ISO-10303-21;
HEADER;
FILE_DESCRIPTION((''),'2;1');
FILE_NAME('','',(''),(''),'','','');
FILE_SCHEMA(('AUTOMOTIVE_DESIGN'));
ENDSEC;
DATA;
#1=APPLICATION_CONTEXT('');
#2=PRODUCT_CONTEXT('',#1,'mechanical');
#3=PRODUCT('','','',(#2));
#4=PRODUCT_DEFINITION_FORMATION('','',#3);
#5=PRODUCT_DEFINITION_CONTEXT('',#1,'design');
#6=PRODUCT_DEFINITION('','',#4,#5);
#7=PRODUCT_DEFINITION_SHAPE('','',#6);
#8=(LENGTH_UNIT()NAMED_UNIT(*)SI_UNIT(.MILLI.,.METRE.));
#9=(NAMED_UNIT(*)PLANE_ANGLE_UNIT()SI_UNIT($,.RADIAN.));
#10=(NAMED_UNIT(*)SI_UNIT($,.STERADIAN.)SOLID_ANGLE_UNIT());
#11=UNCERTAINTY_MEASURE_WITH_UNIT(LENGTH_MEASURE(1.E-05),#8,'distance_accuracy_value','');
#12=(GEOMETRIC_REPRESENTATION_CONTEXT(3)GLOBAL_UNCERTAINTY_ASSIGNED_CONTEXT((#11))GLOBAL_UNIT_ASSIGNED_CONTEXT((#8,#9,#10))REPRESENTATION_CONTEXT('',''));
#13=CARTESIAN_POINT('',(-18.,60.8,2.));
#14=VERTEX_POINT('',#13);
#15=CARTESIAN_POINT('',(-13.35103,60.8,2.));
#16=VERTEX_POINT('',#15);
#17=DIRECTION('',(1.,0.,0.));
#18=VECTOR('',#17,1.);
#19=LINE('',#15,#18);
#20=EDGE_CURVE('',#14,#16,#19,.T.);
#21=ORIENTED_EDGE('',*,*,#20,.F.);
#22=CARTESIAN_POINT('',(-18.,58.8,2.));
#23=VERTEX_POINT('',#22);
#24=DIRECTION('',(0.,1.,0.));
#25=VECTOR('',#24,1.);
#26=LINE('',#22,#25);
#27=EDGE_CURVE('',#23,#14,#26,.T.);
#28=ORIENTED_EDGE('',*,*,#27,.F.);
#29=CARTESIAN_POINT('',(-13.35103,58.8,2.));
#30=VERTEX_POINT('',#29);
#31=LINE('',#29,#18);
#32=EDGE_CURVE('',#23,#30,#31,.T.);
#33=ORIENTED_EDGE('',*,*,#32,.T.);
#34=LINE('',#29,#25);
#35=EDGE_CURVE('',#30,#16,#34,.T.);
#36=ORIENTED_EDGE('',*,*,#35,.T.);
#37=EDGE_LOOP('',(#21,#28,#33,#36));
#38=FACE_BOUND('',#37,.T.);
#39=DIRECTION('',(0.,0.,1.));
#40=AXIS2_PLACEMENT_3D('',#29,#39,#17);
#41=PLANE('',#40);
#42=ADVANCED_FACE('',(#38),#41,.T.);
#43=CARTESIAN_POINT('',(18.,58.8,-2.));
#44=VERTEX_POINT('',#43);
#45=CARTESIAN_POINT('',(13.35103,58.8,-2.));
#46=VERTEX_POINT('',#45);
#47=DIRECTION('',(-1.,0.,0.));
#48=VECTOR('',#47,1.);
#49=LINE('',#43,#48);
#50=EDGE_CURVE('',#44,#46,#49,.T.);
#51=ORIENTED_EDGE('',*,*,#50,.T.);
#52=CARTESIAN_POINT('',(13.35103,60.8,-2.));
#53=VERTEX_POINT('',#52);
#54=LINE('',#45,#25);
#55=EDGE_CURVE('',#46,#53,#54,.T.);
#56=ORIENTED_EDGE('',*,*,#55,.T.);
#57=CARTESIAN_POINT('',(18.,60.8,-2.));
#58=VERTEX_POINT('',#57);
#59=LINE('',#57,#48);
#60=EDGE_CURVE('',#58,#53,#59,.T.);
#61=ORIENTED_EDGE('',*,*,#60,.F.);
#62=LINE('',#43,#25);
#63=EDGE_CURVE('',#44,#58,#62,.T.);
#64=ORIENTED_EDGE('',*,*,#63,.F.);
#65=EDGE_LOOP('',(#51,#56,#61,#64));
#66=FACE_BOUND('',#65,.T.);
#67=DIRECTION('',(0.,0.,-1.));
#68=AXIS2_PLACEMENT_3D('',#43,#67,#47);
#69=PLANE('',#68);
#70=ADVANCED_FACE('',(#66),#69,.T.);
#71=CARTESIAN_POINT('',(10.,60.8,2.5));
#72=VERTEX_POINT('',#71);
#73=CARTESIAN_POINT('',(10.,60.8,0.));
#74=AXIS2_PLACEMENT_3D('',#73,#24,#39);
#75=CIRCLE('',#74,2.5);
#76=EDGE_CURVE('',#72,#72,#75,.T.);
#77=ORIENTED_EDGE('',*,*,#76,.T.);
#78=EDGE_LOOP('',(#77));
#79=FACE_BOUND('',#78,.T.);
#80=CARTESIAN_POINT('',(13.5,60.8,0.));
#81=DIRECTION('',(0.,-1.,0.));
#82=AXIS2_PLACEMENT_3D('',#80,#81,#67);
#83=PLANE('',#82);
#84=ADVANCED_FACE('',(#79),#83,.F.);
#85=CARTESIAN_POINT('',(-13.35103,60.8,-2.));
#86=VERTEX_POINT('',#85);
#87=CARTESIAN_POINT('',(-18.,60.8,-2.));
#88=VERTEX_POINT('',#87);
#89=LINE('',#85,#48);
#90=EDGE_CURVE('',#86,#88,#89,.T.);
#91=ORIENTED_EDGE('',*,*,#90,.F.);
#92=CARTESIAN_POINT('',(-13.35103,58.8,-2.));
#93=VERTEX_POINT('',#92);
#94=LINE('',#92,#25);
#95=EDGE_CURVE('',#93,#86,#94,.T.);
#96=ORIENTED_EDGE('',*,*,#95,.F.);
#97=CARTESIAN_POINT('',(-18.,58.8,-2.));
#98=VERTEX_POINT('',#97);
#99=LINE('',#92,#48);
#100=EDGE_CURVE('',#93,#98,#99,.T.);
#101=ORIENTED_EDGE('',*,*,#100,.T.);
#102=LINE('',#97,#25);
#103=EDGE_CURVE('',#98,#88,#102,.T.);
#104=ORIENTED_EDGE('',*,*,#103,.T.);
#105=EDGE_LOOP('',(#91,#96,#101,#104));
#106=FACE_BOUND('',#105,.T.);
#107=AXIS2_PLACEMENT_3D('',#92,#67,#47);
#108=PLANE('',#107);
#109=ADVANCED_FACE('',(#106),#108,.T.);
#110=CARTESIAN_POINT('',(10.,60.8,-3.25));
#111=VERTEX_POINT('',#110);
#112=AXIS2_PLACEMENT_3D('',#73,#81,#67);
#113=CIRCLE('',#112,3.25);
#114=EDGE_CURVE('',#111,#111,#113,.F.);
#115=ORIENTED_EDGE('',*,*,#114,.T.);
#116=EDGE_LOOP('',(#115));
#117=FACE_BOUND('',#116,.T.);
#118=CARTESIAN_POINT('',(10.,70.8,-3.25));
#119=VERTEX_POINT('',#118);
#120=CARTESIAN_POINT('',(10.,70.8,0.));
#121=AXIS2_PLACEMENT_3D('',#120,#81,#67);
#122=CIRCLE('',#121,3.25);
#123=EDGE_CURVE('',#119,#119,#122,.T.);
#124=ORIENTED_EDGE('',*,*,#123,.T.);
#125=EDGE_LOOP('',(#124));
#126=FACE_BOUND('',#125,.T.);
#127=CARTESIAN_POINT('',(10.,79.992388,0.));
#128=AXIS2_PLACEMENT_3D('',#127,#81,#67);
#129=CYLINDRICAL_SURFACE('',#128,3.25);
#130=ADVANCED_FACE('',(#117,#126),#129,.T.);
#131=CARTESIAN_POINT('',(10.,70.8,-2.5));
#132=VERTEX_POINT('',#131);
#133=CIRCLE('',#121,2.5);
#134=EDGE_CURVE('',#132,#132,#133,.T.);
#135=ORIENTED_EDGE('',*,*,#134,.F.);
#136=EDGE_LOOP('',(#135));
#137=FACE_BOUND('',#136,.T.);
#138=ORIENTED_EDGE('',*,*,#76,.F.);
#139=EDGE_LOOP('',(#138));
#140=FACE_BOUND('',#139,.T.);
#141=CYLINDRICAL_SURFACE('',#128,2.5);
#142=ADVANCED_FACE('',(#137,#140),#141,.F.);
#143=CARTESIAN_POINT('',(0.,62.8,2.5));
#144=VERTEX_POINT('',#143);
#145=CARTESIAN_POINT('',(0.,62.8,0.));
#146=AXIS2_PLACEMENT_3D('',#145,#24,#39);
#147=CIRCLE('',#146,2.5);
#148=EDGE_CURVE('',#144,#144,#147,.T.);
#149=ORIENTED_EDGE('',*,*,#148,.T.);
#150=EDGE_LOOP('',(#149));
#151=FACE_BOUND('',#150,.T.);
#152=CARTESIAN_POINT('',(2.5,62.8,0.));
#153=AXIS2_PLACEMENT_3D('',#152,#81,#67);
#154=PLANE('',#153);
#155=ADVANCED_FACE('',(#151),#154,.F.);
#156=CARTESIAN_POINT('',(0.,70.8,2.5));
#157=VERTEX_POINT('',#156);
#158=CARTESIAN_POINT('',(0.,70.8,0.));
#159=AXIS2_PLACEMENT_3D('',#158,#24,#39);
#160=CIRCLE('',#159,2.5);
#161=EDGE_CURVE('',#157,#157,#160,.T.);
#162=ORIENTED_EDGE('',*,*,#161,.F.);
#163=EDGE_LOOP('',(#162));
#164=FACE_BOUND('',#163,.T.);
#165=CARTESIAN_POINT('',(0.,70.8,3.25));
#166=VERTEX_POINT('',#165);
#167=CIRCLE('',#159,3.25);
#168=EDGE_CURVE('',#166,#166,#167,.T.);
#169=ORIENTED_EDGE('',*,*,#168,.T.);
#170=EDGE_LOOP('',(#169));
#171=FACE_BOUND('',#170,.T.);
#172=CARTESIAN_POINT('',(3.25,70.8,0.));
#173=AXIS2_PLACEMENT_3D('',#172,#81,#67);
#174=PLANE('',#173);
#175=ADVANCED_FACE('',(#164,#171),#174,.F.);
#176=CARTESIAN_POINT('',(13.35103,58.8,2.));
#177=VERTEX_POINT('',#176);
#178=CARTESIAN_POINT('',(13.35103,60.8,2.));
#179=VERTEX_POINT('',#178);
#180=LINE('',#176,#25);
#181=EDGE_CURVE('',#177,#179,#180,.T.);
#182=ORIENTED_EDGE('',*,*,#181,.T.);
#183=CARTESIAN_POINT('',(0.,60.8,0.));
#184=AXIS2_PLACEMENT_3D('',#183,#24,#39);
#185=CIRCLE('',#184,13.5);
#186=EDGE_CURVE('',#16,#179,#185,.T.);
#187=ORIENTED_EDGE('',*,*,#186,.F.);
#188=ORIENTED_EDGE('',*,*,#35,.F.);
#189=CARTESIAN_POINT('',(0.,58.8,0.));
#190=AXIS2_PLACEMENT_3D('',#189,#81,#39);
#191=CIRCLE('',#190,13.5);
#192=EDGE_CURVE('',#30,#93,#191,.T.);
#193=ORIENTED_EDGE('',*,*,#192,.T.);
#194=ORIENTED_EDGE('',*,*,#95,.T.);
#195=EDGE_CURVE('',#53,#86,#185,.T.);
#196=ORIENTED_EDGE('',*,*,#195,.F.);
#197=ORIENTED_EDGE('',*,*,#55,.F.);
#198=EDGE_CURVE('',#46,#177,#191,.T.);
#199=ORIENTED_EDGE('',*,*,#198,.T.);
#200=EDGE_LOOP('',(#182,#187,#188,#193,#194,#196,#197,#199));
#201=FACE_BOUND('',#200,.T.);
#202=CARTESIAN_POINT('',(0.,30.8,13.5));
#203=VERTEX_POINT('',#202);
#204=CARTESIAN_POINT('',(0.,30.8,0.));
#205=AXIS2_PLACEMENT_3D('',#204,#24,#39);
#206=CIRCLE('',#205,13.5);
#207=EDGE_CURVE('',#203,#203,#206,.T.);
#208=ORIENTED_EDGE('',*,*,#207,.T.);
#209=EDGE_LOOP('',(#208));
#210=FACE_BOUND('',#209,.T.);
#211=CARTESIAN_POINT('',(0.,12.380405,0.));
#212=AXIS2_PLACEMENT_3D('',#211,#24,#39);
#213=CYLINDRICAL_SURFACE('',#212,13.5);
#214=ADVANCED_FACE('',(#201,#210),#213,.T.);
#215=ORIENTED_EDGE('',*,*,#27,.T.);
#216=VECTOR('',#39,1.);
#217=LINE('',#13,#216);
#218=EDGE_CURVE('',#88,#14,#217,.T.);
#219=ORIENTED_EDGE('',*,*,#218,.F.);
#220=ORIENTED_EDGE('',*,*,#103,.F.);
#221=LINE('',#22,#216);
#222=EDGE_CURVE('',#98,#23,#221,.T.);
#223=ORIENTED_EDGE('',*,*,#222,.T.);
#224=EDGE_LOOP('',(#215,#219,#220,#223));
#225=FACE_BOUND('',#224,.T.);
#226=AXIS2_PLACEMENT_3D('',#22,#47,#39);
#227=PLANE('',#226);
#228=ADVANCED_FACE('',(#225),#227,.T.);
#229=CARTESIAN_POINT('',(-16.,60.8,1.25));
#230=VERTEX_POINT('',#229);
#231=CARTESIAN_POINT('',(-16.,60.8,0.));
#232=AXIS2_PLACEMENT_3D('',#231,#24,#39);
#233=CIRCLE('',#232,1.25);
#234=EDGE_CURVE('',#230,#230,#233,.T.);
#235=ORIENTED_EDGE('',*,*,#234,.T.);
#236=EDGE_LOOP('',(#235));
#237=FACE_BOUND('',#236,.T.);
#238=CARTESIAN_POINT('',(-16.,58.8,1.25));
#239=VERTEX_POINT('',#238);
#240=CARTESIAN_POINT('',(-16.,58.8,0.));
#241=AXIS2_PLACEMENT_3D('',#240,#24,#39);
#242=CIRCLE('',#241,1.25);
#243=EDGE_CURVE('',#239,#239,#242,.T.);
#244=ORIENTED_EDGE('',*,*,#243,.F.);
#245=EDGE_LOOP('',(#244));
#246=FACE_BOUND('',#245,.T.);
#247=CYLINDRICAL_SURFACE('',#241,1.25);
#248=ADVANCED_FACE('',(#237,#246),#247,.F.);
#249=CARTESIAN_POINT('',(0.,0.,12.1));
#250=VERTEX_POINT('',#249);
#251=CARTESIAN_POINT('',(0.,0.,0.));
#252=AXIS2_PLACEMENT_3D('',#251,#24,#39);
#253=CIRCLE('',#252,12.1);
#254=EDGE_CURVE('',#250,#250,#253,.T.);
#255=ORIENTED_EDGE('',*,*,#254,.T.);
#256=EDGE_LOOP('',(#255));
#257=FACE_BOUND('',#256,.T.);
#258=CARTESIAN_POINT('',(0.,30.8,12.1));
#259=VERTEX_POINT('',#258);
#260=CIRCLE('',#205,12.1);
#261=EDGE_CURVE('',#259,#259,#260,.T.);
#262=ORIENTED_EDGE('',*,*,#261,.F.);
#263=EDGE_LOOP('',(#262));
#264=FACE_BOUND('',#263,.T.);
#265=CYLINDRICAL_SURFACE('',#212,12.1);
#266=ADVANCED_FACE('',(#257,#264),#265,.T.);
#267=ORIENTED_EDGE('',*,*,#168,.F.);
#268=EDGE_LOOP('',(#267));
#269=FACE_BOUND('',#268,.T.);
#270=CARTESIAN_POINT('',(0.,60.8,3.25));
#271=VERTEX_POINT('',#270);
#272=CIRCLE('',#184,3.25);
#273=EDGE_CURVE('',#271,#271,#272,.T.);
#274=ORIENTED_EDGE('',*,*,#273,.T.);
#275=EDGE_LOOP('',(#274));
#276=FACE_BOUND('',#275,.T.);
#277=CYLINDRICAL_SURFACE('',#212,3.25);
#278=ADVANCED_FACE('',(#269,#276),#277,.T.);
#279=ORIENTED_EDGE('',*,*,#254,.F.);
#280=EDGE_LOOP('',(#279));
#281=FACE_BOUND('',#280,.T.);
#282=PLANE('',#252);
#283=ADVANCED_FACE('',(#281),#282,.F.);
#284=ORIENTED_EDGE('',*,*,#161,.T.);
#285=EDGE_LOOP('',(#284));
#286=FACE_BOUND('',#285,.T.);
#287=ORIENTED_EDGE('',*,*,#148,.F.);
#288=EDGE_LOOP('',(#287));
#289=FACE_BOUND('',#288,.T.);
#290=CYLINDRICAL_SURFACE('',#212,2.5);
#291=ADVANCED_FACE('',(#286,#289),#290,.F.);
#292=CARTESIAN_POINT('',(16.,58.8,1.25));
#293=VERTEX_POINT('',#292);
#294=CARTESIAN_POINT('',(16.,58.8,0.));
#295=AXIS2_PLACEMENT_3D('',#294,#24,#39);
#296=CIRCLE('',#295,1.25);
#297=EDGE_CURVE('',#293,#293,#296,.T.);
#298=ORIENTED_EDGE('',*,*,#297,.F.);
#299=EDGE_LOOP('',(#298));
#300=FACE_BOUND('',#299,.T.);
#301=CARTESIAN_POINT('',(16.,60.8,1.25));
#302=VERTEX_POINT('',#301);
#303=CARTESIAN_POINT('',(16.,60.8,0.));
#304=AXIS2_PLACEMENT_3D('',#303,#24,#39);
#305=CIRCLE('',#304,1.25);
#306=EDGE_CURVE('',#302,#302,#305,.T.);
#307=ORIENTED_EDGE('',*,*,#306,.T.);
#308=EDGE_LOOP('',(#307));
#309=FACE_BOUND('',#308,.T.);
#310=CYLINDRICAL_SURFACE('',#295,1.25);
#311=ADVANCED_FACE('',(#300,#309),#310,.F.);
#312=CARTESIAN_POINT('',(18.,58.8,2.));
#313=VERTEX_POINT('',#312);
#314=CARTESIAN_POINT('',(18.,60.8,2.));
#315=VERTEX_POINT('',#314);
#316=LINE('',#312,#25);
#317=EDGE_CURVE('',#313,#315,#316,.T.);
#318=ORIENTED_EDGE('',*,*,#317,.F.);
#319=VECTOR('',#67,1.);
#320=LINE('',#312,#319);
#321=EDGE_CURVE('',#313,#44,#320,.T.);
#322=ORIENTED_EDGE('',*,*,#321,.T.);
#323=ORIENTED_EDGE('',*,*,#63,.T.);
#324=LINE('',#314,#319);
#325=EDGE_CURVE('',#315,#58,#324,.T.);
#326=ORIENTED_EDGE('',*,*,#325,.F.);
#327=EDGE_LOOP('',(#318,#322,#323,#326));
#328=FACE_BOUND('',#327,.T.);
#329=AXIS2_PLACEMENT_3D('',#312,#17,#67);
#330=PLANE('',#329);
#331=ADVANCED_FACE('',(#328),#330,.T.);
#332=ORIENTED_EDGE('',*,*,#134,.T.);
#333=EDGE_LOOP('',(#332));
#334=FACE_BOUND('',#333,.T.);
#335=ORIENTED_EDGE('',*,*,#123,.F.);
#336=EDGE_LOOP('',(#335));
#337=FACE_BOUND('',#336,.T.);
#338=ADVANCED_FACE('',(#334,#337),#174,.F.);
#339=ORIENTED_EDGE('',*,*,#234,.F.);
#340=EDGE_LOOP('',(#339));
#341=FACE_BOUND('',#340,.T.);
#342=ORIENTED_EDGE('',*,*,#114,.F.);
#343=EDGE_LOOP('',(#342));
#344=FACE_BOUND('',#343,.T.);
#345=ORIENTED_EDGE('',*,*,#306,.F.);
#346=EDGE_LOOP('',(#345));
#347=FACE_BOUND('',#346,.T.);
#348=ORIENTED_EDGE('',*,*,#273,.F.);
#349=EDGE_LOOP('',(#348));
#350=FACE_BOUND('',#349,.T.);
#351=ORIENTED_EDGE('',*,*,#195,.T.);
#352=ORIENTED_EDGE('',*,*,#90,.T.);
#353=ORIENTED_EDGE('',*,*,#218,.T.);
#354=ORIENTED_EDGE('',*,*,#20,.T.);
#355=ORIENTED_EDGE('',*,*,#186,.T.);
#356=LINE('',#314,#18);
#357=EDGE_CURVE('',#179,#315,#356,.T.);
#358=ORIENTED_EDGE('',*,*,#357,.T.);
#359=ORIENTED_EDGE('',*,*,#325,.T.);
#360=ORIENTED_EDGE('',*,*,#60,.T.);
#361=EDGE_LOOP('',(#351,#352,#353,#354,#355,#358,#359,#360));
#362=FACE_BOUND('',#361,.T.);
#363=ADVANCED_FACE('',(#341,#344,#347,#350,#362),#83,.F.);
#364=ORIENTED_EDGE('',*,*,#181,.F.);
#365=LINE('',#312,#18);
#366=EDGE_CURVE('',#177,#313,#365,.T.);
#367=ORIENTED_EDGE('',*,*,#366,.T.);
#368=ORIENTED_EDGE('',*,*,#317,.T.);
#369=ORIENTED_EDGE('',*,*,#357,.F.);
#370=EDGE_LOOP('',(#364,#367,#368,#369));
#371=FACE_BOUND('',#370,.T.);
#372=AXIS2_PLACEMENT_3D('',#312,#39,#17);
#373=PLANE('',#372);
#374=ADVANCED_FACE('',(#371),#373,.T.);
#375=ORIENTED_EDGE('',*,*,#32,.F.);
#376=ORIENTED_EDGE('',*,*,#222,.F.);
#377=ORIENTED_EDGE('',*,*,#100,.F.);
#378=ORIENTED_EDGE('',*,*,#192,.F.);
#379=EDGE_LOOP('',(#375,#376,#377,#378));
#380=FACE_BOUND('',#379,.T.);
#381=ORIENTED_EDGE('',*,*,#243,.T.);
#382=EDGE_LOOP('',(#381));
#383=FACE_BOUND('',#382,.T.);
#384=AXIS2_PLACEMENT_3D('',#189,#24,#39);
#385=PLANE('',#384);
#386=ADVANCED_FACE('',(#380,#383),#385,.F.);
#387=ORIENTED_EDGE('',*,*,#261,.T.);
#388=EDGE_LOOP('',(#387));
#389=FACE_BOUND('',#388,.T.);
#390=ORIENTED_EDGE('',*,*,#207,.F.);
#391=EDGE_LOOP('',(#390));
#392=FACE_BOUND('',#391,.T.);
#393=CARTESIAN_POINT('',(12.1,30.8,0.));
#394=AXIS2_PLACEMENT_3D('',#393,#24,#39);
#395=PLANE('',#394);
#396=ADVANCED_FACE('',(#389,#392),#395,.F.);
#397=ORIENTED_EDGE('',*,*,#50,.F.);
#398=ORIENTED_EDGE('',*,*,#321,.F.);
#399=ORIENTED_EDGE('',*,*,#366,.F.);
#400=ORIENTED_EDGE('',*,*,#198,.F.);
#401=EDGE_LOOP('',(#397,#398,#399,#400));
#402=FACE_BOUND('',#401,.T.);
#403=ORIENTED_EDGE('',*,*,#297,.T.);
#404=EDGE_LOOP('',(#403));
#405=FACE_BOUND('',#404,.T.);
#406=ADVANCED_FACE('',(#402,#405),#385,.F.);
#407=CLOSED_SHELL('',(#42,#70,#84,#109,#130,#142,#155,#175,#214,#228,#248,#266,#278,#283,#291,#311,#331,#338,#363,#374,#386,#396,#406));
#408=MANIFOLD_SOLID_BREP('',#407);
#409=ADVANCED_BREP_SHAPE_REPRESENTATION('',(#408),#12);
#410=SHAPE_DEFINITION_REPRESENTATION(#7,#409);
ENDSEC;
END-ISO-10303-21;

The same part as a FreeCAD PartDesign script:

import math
import FreeCAD as App
import Part
import Sketcher

V = App.Vector

doc = App.newDocument("Part")
body = doc.addObject("PartDesign::Body", "Body")

# Sketch on XY plane
sketch1 = body.newObject("Sketcher::SketchObject", "Sketch")
sketch1.AttachmentSupport = (doc.getObject("XY_Plane"), [""])
sketch1.MapMode = "FlatFace"
sketch1.addGeometry(Part.LineSegment(V(0, 0, 0), V(12.1, 0, 0)), False)
sketch1.addGeometry(Part.LineSegment(V(12.1, 0, 0), V(12.1, 30.8, 0)), False)
sketch1.addGeometry(Part.LineSegment(V(12.1, 30.8, 0), V(13.5, 30.8, 0)), False)
sketch1.addGeometry(Part.LineSegment(V(13.5, 30.8, 0), V(13.5, 60.8, 0)), False)
sketch1.addGeometry(Part.LineSegment(V(13.5, 60.8, 0), V(3.2, 60.8, 0)), False)
sketch1.addGeometry(Part.LineSegment(V(3.2, 60.8, 0), V(3.2, 70.8, 0)), False)
sketch1.addGeometry(Part.LineSegment(V(3.2, 70.8, 0), V(2.5, 70.8, 0)), False)
sketch1.addGeometry(Part.LineSegment(V(2.5, 70.8, 0), V(2.5, 62.8, 0)), False)
sketch1.addGeometry(Part.LineSegment(V(2.5, 62.8, 0), V(0, 62.8, 0)), False)
sketch1.addGeometry(Part.LineSegment(V(0, 62.8, 0), V(0, 0, 0)), False)
sketch1.addConstraint(Sketcher.Constraint("Coincident", 0, 2, 1, 1))
sketch1.addConstraint(Sketcher.Constraint("Coincident", 1, 2, 2, 1))
sketch1.addConstraint(Sketcher.Constraint("Coincident", 2, 2, 3, 1))
sketch1.addConstraint(Sketcher.Constraint("Coincident", 3, 2, 4, 1))
sketch1.addConstraint(Sketcher.Constraint("Coincident", 4, 2, 5, 1))
sketch1.addConstraint(Sketcher.Constraint("Coincident", 5, 2, 6, 1))
sketch1.addConstraint(Sketcher.Constraint("Coincident", 6, 2, 7, 1))
sketch1.addConstraint(Sketcher.Constraint("Coincident", 7, 2, 8, 1))
sketch1.addConstraint(Sketcher.Constraint("Coincident", 8, 2, 9, 1))
sketch1.addConstraint(Sketcher.Constraint("Coincident", 9, 2, 0, 1))
sketch1.addConstraint(Sketcher.Constraint("Horizontal", 0))
sketch1.addConstraint(Sketcher.Constraint("Vertical", 1))
sketch1.addConstraint(Sketcher.Constraint("Horizontal", 2))
sketch1.addConstraint(Sketcher.Constraint("Vertical", 3))
sketch1.addConstraint(Sketcher.Constraint("Horizontal", 4))
sketch1.addConstraint(Sketcher.Constraint("Vertical", 5))
sketch1.addConstraint(Sketcher.Constraint("Horizontal", 6))
sketch1.addConstraint(Sketcher.Constraint("Vertical", 7))
sketch1.addConstraint(Sketcher.Constraint("Horizontal", 8))
sketch1.addConstraint(Sketcher.Constraint("Vertical", 9))
sketch1.addConstraint(Sketcher.Constraint("Coincident", 9, 2, -1, 1))
sketch1.addConstraint(Sketcher.Constraint("DistanceY", 3, 1, 3, 2, 30.0))
sketch1.addConstraint(Sketcher.Constraint("DistanceY", 5, 1, 5, 2, 10.0))
sketch1.addConstraint(Sketcher.Constraint("DistanceY", 7, 2, 7, 1, 8.0))
sketch1.addConstraint(Sketcher.Constraint("DistanceX", 0, 1, 0, 2, 12.1))
sketch1.addConstraint(Sketcher.Constraint("DistanceX", 2, 1, 2, 2, 1.4))
sketch1.addConstraint(Sketcher.Constraint("DistanceX", 8, 2, 8, 1, 2.5))
sketch1.addConstraint(Sketcher.Constraint("DistanceY", 1, 1, 1, 2, 30.8))
sketch1.addConstraint(Sketcher.Constraint("DistanceX", 4, 2, 4, 1, 10.25))
revolution = body.newObject("PartDesign::Revolution", "Revolution")
revolution.Profile = sketch1
revolution.ReferenceAxis = (sketch1, ["V_Axis"])
revolution.Angle = 360

# Sketch on XZ plane
sketch2 = body.newObject("Sketcher::SketchObject", "Sketch001")
sketch2.AttachmentSupport = (doc.getObject("XZ_Plane"), [""])
sketch2.MapMode = "FlatFace"
sketch2.AttachmentOffset = App.Placement(V(0, 0, -60.8), App.Rotation())
sketch2.addGeometry(Part.Circle(V(10, 0, 0), V(0, 0, 1), 3.2), False)
sketch2.addGeometry(Part.Circle(V(10, 0, 0), V(0, 0, 1), 2.5), False)
sketch2.addConstraint(Sketcher.Constraint("Coincident", 1, 3, 0, 3))
sketch2.addConstraint(Sketcher.Constraint("PointOnObject", 0, 3, -1))
sketch2.addConstraint(Sketcher.Constraint("Diameter", 1, 5.0))
sketch2.addConstraint(Sketcher.Constraint("Diameter", 0, 6.5))
sketch2.addConstraint(Sketcher.Constraint("DistanceX", -1, 1, 0, 3, 10.0))
pad1 = body.newObject("PartDesign::Pad", "Pad")
pad1.Profile = sketch2
pad1.Length = 10
pad1.Reversed = True

# Sketch on XZ plane
sketch3 = body.newObject("Sketcher::SketchObject", "Sketch002")
sketch3.AttachmentSupport = (doc.getObject("XZ_Plane"), [""])
sketch3.MapMode = "FlatFace"
sketch3.AttachmentOffset = App.Placement(V(0, 0, -60.8), App.Rotation())
sketch3.addGeometry(Part.LineSegment(V(-13.4, -2, 0), V(-18, -2, 0)), False)
sketch3.addGeometry(Part.LineSegment(V(-18, -2, 0), V(-18, 2, 0)), False)
sketch3.addGeometry(Part.LineSegment(V(-18, 2, 0), V(-13.4, 2, 0)), False)
sketch3.addGeometry(Part.ArcOfCircle(Part.Circle(V(0, 0, 0), V(0, 0, 1), 13.5), math.radians(171.48), math.radians(188.52)), False)
sketch3.addGeometry(Part.Circle(V(-16, 0, 0), V(0, 0, 1), 1.2), False)
sketch3.addGeometry(Part.LineSegment(V(13.4, 2, 0), V(18, 2, 0)), False)
sketch3.addGeometry(Part.LineSegment(V(18, 2, 0), V(18, -2, 0)), False)
sketch3.addGeometry(Part.LineSegment(V(18, -2, 0), V(13.4, -2, 0)), False)
sketch3.addGeometry(Part.ArcOfCircle(Part.Circle(V(0, 0, 0), V(0, 0, 1), 13.5), math.radians(-8.52), math.radians(8.52)), False)
sketch3.addGeometry(Part.Circle(V(16, 0, 0), V(0, 0, 1), 1.2), False)
sketch3.addConstraint(Sketcher.Constraint("Coincident", 0, 2, 1, 1))
sketch3.addConstraint(Sketcher.Constraint("Coincident", 1, 2, 2, 1))
sketch3.addConstraint(Sketcher.Constraint("Coincident", 2, 2, 3, 1))
sketch3.addConstraint(Sketcher.Constraint("Coincident", 3, 2, 0, 1))
sketch3.addConstraint(Sketcher.Constraint("Coincident", 5, 2, 6, 1))
sketch3.addConstraint(Sketcher.Constraint("Coincident", 6, 2, 7, 1))
sketch3.addConstraint(Sketcher.Constraint("Coincident", 7, 2, 8, 1))
sketch3.addConstraint(Sketcher.Constraint("Coincident", 8, 2, 5, 1))
sketch3.addConstraint(Sketcher.Constraint("Horizontal", 0))
sketch3.addConstraint(Sketcher.Constraint("Vertical", 1))
sketch3.addConstraint(Sketcher.Constraint("Horizontal", 2))
sketch3.addConstraint(Sketcher.Constraint("Horizontal", 5))
sketch3.addConstraint(Sketcher.Constraint("Vertical", 6))
sketch3.addConstraint(Sketcher.Constraint("Horizontal", 7))
sketch3.addConstraint(Sketcher.Constraint("Coincident", 3, 3, -1, 1))
sketch3.addConstraint(Sketcher.Constraint("Coincident", 8, 3, -1, 1))
sketch3.addConstraint(Sketcher.Constraint("Equal", 3, 8))
sketch3.addConstraint(Sketcher.Constraint("Equal", 4, 9))
sketch3.addConstraint(Sketcher.Constraint("Symmetric", 4, 3, 9, 3, -1, 1))
sketch3.addConstraint(Sketcher.Constraint("Symmetric", 0, 2, 5, 2, -1, 1))
sketch3.addConstraint(Sketcher.Constraint("PointOnObject", 4, 3, -1))
sketch3.addConstraint(Sketcher.Constraint("Horizontal", 2, 2, 5, 2))
sketch3.addConstraint(Sketcher.Constraint("Horizontal", 3, 2, 6, 2))
sketch3.addConstraint(Sketcher.Constraint("Diameter", 4, 2.5))
sketch3.addConstraint(Sketcher.Constraint("Radius", 3, 13.5))
sketch3.addConstraint(Sketcher.Constraint("DistanceY", 1, 1, 1, 2, 4.0))
sketch3.addConstraint(Sketcher.Constraint("DistanceX", 4, 3, -1, 1, 16.0))
sketch3.addConstraint(Sketcher.Constraint("DistanceX", 0, 2, -1, 1, 18.0))
pad2 = body.newObject("PartDesign::Pad", "Pad001")
pad2.Profile = sketch3
pad2.Length = 2

doc.recompute()
